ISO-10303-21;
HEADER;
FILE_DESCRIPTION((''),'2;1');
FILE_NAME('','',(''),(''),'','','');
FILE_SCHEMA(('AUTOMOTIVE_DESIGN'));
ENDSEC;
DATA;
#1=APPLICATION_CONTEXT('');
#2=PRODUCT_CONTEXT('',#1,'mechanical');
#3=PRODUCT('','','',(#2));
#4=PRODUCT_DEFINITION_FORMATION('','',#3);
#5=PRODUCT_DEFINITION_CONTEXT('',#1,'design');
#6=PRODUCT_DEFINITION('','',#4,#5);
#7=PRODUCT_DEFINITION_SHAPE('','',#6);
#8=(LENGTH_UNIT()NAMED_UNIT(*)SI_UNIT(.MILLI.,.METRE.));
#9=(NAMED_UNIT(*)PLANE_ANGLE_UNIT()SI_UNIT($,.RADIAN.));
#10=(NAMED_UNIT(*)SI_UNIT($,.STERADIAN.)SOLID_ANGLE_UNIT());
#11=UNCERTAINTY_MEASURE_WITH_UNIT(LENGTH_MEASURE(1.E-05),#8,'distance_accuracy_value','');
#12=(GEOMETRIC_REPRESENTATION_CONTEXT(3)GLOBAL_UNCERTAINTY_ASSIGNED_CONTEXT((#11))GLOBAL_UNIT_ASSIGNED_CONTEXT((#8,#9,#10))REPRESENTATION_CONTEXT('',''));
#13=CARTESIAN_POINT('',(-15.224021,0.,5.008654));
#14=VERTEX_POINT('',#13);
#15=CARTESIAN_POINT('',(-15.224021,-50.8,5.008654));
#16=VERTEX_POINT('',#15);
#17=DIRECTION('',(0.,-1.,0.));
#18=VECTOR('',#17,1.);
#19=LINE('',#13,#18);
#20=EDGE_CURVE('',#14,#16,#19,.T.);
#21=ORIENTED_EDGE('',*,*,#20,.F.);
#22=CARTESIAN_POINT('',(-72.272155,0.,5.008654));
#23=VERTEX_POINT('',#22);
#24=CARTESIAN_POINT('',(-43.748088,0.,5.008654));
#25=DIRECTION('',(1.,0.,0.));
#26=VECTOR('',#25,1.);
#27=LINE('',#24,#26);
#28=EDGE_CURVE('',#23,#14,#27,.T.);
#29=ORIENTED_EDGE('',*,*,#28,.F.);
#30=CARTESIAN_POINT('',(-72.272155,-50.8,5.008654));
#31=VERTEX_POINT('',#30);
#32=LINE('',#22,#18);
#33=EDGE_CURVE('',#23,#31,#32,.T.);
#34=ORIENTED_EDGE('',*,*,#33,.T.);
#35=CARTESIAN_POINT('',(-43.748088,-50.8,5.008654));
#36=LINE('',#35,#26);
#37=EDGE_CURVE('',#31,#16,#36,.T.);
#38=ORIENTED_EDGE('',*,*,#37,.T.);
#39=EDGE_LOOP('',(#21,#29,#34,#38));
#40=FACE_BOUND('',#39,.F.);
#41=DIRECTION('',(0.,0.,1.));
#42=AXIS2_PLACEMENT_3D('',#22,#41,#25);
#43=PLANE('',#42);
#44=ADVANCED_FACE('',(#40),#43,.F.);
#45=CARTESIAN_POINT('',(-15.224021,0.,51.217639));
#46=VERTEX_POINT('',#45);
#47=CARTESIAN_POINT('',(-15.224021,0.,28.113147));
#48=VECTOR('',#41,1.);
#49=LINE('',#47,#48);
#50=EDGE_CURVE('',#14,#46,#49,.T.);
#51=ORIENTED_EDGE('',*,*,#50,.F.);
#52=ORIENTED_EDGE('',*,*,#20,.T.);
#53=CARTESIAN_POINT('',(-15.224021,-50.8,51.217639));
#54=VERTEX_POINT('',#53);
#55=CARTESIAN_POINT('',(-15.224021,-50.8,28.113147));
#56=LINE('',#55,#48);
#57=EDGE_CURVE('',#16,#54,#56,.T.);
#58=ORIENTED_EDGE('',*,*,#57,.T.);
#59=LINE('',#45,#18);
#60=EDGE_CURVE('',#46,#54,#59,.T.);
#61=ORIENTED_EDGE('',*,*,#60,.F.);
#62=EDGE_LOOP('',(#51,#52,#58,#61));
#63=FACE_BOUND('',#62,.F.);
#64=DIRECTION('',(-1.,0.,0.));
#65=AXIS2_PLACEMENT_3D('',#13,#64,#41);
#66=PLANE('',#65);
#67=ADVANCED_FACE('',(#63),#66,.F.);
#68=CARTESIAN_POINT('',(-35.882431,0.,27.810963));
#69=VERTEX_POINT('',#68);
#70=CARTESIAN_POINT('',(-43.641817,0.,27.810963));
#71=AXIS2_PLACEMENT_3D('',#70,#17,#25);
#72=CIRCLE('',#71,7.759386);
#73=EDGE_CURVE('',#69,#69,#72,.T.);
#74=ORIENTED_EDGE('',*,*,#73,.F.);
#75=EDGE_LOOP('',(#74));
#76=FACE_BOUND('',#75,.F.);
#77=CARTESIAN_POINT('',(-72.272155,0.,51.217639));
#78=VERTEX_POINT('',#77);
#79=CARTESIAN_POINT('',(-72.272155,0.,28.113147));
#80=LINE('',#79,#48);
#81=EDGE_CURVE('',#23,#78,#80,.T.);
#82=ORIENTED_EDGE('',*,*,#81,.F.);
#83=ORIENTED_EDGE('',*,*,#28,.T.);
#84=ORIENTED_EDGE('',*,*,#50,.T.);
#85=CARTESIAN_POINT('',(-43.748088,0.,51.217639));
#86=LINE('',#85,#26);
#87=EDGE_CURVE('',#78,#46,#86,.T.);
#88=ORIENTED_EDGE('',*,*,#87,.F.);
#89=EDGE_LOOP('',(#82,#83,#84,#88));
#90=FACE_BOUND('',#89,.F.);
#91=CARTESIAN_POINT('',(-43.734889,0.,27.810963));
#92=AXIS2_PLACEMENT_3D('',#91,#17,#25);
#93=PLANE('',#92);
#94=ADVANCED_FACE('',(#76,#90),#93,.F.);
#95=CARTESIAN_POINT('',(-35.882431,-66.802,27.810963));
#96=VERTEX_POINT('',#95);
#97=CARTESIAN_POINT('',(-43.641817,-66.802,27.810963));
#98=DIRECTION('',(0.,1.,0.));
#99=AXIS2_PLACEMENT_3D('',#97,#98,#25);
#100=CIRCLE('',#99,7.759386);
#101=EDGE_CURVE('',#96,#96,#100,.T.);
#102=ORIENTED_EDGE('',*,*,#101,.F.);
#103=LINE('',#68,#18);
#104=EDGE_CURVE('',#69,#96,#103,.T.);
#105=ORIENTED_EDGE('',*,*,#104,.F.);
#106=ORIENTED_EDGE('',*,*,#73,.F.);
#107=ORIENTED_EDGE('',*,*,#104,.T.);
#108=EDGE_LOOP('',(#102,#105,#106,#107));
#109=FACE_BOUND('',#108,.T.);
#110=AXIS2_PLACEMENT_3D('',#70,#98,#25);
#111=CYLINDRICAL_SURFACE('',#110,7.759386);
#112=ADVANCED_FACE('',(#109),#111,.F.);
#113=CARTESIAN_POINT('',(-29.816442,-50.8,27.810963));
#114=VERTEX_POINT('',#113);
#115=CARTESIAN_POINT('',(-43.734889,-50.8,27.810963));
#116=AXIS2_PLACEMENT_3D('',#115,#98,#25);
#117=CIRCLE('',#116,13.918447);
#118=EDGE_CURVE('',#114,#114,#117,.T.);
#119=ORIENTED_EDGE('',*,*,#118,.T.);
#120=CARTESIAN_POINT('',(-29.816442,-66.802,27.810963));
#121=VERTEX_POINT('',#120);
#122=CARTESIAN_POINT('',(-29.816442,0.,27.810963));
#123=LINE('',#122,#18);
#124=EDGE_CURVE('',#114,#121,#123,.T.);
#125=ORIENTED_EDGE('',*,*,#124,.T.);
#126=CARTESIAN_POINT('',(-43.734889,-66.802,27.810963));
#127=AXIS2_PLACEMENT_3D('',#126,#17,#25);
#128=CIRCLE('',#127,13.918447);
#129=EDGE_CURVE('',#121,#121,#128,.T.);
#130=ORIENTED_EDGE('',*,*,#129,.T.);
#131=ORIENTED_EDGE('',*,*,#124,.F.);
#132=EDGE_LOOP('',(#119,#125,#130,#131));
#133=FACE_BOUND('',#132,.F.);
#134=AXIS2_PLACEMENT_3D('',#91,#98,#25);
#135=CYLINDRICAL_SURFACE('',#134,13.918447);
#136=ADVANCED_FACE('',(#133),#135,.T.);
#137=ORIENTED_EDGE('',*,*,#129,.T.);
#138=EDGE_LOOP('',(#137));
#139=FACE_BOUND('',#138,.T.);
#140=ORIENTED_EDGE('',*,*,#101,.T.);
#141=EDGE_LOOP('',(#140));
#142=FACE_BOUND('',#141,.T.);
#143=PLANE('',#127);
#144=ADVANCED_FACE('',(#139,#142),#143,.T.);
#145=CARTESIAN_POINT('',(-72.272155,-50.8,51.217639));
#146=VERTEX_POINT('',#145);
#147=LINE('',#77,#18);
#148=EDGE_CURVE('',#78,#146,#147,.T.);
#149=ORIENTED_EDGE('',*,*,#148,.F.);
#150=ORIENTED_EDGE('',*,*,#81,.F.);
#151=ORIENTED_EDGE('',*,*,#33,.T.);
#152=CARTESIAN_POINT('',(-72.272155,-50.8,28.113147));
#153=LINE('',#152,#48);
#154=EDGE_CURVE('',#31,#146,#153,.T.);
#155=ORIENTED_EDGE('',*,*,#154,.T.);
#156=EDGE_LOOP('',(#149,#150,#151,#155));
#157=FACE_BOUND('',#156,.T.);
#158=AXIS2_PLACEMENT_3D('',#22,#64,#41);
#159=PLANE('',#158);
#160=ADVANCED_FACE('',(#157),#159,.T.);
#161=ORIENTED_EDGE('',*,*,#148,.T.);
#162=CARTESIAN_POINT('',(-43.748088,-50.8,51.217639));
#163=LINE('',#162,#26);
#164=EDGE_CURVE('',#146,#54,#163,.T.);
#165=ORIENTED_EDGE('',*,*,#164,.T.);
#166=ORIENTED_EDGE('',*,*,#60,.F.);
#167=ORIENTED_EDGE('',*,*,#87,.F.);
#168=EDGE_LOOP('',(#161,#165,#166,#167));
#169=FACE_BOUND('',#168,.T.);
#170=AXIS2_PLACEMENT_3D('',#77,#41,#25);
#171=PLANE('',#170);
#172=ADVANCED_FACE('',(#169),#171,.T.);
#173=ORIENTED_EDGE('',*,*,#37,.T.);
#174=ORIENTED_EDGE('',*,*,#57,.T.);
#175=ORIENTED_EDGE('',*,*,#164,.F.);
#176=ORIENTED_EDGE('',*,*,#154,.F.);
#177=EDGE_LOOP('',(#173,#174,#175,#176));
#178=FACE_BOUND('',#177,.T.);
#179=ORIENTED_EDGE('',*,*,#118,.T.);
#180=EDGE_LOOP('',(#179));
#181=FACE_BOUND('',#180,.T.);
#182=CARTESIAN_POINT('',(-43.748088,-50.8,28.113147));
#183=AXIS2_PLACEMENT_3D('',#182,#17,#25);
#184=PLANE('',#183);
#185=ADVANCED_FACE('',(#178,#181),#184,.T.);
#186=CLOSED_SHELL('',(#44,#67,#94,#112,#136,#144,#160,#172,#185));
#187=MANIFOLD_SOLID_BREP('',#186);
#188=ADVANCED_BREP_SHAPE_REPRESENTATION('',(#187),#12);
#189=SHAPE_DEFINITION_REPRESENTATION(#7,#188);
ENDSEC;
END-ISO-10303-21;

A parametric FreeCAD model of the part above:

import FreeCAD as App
import Part
import Sketcher
Q = App.Units.Quantity

doc = App.newDocument("Part")
body = doc.addObject("PartDesign::Body", "Body")

sketch1 = body.newObject("Sketcher::SketchObject", "Sketch")
sketch1.AttachmentSupport = (doc.getObject("XZ_Plane"), [""])
sketch1.MapMode = "FlatFace"
sketch1.addGeometry(Part.LineSegment(App.Vector(-72.272155, 51.217639, 0), App.Vector(-72.272155, 5.008654, 0)), False)
sketch1.addGeometry(Part.LineSegment(App.Vector(-72.272155, 5.008654, 0), App.Vector(-15.224021, 5.008654, 0)), False)
sketch1.addGeometry(Part.LineSegment(App.Vector(-15.224021, 5.008654, 0), App.Vector(-15.224021, 51.217639, 0)), False)
sketch1.addGeometry(Part.LineSegment(App.Vector(-15.224021, 51.217639, 0), App.Vector(-72.272155, 51.217639, 0)), False)
sketch1.addConstraint(Sketcher.Constraint("Coincident", 0, 2, 1, 1))
sketch1.addConstraint(Sketcher.Constraint("Coincident", 1, 2, 2, 1))
sketch1.addConstraint(Sketcher.Constraint("Coincident", 2, 2, 3, 1))
sketch1.addConstraint(Sketcher.Constraint("Coincident", 3, 2, 0, 1))
sketch1.addConstraint(Sketcher.Constraint("Vertical", 0))
sketch1.addConstraint(Sketcher.Constraint("Horizontal", 1))
sketch1.addConstraint(Sketcher.Constraint("Vertical", 2))
sketch1.addConstraint(Sketcher.Constraint("Horizontal", 3))
sketch1.addConstraint(Sketcher.Constraint("DistanceX", 1, 1, 1, 2, 57.048134))
sketch1.addConstraint(Sketcher.Constraint("DistanceY", 0, 2, 0, 1, 46.208985))
sketch1.addConstraint(Sketcher.Constraint("DistanceX", 1, 2, -1, 1, 15.224021))
sketch1.addConstraint(Sketcher.Constraint("DistanceY", -1, 1, 2, 2, 51.217639))
pad1 = body.newObject("PartDesign::Pad", "Pad")
pad1.Profile = sketch1
pad1.Length = Q("2 in")

sketch2 = body.newObject("Sketcher::SketchObject", "Sketch001")
sketch2.AttachmentSupport = (doc.getObject("XZ_Plane"), [""])
sketch2.MapMode = "FlatFace"
sketch2.addGeometry(Part.Circle(App.Vector(-43.734889, 27.810963, 0), App.Vector(0, 0, 1), 13.918447), False)
sketch2.addConstraint(Sketcher.Constraint("Diameter", 0, 27.836894))
sketch2.addConstraint(Sketcher.Constraint("DistanceX", 0, 3, -1, 1, 43.734889))
sketch2.addConstraint(Sketcher.Constraint("DistanceY", -1, 1, 0, 3, 27.810963))
pad2 = body.newObject("PartDesign::Pad", "Pad001")
pad2.Profile = sketch2
pad2.Length = Q("2.63 in")

sketch3 = body.newObject("Sketcher::SketchObject", "Sketch002")
sketch3.AttachmentSupport = (doc.getObject("XZ_Plane"), [""])
sketch3.MapMode = "FlatFace"
sketch3.addGeometry(Part.Circle(App.Vector(-43.641817, 27.810963, 0), App.Vector(0, 0, 1), 7.759386), False)
sketch3.addConstraint(Sketcher.Constraint("Diameter", 0, 15.518772))
sketch3.addConstraint(Sketcher.Constraint("DistanceX", 0, 3, -1, 1, 43.641817))
sketch3.addConstraint(Sketcher.Constraint("DistanceY", -1, 1, 0, 3, 27.810963))
pocket1 = body.newObject("PartDesign::Pocket", "Pocket")
pocket1.Profile = sketch3
pocket1.Type = "ThroughAll"
pocket1.Reversed = True

doc.recompute()
